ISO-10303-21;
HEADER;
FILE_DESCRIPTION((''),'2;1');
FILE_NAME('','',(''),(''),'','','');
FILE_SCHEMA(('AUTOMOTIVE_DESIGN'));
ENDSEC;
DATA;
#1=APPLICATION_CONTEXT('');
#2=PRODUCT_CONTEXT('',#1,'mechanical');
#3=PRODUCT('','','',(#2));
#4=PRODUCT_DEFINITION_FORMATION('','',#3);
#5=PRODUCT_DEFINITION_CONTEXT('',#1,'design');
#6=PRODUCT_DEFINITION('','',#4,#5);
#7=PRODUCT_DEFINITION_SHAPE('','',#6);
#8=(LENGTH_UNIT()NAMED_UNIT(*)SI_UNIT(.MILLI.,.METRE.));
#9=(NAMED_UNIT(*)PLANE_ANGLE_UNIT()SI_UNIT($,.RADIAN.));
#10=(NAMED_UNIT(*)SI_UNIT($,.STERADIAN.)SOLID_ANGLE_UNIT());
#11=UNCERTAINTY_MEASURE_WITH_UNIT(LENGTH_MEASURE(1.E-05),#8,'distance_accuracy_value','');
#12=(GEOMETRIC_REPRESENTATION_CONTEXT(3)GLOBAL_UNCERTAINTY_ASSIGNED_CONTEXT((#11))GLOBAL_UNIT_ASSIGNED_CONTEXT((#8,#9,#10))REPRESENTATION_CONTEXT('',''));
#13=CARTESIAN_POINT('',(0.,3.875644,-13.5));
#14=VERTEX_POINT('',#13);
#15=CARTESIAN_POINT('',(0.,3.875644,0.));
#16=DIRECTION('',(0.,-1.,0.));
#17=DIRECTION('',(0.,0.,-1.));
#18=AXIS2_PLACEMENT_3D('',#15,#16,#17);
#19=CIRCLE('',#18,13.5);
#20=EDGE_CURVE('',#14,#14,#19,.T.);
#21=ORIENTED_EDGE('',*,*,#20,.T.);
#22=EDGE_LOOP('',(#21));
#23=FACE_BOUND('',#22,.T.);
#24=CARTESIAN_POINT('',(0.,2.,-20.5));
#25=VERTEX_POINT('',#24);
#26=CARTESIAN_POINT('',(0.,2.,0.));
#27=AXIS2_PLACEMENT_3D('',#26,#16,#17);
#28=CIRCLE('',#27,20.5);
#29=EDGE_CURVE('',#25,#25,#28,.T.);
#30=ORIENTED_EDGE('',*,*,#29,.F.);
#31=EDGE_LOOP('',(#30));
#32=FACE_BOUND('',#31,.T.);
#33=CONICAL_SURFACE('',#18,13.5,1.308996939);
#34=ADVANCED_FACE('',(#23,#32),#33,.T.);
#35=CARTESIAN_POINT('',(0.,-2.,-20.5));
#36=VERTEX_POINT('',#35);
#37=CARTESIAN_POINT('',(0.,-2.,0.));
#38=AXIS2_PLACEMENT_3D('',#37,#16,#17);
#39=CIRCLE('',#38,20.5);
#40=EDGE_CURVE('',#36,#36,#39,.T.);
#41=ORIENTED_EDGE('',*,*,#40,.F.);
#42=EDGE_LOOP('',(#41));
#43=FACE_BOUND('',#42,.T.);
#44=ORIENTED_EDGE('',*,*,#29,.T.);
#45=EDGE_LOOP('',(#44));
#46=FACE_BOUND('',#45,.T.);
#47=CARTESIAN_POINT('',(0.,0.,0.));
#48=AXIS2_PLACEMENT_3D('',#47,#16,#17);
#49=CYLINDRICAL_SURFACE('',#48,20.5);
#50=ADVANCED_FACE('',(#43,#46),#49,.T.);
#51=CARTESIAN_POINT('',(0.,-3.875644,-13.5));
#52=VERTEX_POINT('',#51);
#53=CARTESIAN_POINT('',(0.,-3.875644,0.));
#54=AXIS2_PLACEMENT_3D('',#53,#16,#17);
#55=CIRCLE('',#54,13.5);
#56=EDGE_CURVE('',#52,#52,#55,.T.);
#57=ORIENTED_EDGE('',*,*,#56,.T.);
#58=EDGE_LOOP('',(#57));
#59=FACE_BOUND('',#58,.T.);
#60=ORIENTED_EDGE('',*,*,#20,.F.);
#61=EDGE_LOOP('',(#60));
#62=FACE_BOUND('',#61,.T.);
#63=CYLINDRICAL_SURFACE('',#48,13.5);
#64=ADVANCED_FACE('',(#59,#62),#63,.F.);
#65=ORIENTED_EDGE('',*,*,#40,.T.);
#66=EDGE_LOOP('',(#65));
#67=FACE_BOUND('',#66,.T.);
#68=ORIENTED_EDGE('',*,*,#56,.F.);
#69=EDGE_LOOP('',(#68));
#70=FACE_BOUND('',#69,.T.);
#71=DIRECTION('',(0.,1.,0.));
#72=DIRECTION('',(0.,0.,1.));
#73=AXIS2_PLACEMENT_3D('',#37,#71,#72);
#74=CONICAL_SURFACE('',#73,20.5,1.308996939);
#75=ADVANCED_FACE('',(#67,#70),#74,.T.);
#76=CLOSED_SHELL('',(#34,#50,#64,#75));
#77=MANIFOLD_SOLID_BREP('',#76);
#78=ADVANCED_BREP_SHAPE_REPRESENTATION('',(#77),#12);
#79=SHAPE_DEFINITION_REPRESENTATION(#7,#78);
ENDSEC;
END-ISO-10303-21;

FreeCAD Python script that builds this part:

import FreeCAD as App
import Part
import Sketcher
from FreeCAD import Vector
Q = App.Units.Quantity

doc = App.newDocument("Part")
params = doc.addObject("Spreadsheet::Sheet", "Params")
for row, (alias, value) in enumerate([
    ("sketch1_height", "4 mm"),
    ("revolution_angle", "360 deg"),
], start=1):
    params.set(f"A{row}", alias)
    params.set(f"B{row}", "=" + value)
    params.setAlias(f"B{row}", alias)

body = doc.addObject("PartDesign::Body", "Body")

sketch1 = doc.addObject("Sketcher::SketchObject", "Sketch")
body.addObject(sketch1)
sketch1.AttachmentSupport = (doc.XY_Plane, [""])
sketch1.MapMode = "FlatFace"
sketch1.addGeometry(Part.LineSegment(Vector(-20.5, 2, 0), Vector(-20.5, -2, 0)), False)
sketch1.addGeometry(Part.LineSegment(Vector(-20.5, -2, 0), Vector(-13.5, -3.9, 0)), False)
sketch1.addGeometry(Part.LineSegment(Vector(-13.5, -3.9, 0), Vector(-13.5, 3.9, 0)), False)
sketch1.addGeometry(Part.LineSegment(Vector(-13.5, 3.9, 0), Vector(-20.5, 2, 0)), False)
sketch1.addConstraint(Sketcher.Constraint("Coincident", 0, 2, 1, 1))
sketch1.addConstraint(Sketcher.Constraint("Coincident", 1, 2, 2, 1))
sketch1.addConstraint(Sketcher.Constraint("Coincident", 2, 2, 3, 1))
sketch1.addConstraint(Sketcher.Constraint("Coincident", 3, 2, 0, 1))
sketch1.addConstraint(Sketcher.Constraint("Vertical", 0))
sketch1.addConstraint(Sketcher.Constraint("Vertical", 2))
sketch1.addConstraint(Sketcher.Constraint("Equal", 1, 3))
sketch1.addConstraint(Sketcher.Constraint("DistanceY", 0, 2, 0, 1, Q("4 mm")))
sketch1.addConstraint(Sketcher.Constraint("Angle", 1, Q("-15 deg")))
sketch1.addConstraint(Sketcher.Constraint("DistanceY", 0, 2, -1, 1, Q("2 mm")))
sketch1.addConstraint(Sketcher.Constraint("DistanceX", 0, 2, 1, 2, Q("7 mm")))
sketch1.addConstraint(Sketcher.Constraint("DistanceX", 0, 2, -1, 1, Q("20.5 mm")))
sketch1.setExpression("Constraints[7]", "Params.sketch1_height")
revolution = doc.addObject("PartDesign::Revolution", "Revolution")
body.addObject(revolution)
revolution.Profile = sketch1
revolution.ReferenceAxis = (sketch1, ["V_Axis"])
revolution.setExpression("Angle", "Params.revolution_angle")

doc.recompute()
